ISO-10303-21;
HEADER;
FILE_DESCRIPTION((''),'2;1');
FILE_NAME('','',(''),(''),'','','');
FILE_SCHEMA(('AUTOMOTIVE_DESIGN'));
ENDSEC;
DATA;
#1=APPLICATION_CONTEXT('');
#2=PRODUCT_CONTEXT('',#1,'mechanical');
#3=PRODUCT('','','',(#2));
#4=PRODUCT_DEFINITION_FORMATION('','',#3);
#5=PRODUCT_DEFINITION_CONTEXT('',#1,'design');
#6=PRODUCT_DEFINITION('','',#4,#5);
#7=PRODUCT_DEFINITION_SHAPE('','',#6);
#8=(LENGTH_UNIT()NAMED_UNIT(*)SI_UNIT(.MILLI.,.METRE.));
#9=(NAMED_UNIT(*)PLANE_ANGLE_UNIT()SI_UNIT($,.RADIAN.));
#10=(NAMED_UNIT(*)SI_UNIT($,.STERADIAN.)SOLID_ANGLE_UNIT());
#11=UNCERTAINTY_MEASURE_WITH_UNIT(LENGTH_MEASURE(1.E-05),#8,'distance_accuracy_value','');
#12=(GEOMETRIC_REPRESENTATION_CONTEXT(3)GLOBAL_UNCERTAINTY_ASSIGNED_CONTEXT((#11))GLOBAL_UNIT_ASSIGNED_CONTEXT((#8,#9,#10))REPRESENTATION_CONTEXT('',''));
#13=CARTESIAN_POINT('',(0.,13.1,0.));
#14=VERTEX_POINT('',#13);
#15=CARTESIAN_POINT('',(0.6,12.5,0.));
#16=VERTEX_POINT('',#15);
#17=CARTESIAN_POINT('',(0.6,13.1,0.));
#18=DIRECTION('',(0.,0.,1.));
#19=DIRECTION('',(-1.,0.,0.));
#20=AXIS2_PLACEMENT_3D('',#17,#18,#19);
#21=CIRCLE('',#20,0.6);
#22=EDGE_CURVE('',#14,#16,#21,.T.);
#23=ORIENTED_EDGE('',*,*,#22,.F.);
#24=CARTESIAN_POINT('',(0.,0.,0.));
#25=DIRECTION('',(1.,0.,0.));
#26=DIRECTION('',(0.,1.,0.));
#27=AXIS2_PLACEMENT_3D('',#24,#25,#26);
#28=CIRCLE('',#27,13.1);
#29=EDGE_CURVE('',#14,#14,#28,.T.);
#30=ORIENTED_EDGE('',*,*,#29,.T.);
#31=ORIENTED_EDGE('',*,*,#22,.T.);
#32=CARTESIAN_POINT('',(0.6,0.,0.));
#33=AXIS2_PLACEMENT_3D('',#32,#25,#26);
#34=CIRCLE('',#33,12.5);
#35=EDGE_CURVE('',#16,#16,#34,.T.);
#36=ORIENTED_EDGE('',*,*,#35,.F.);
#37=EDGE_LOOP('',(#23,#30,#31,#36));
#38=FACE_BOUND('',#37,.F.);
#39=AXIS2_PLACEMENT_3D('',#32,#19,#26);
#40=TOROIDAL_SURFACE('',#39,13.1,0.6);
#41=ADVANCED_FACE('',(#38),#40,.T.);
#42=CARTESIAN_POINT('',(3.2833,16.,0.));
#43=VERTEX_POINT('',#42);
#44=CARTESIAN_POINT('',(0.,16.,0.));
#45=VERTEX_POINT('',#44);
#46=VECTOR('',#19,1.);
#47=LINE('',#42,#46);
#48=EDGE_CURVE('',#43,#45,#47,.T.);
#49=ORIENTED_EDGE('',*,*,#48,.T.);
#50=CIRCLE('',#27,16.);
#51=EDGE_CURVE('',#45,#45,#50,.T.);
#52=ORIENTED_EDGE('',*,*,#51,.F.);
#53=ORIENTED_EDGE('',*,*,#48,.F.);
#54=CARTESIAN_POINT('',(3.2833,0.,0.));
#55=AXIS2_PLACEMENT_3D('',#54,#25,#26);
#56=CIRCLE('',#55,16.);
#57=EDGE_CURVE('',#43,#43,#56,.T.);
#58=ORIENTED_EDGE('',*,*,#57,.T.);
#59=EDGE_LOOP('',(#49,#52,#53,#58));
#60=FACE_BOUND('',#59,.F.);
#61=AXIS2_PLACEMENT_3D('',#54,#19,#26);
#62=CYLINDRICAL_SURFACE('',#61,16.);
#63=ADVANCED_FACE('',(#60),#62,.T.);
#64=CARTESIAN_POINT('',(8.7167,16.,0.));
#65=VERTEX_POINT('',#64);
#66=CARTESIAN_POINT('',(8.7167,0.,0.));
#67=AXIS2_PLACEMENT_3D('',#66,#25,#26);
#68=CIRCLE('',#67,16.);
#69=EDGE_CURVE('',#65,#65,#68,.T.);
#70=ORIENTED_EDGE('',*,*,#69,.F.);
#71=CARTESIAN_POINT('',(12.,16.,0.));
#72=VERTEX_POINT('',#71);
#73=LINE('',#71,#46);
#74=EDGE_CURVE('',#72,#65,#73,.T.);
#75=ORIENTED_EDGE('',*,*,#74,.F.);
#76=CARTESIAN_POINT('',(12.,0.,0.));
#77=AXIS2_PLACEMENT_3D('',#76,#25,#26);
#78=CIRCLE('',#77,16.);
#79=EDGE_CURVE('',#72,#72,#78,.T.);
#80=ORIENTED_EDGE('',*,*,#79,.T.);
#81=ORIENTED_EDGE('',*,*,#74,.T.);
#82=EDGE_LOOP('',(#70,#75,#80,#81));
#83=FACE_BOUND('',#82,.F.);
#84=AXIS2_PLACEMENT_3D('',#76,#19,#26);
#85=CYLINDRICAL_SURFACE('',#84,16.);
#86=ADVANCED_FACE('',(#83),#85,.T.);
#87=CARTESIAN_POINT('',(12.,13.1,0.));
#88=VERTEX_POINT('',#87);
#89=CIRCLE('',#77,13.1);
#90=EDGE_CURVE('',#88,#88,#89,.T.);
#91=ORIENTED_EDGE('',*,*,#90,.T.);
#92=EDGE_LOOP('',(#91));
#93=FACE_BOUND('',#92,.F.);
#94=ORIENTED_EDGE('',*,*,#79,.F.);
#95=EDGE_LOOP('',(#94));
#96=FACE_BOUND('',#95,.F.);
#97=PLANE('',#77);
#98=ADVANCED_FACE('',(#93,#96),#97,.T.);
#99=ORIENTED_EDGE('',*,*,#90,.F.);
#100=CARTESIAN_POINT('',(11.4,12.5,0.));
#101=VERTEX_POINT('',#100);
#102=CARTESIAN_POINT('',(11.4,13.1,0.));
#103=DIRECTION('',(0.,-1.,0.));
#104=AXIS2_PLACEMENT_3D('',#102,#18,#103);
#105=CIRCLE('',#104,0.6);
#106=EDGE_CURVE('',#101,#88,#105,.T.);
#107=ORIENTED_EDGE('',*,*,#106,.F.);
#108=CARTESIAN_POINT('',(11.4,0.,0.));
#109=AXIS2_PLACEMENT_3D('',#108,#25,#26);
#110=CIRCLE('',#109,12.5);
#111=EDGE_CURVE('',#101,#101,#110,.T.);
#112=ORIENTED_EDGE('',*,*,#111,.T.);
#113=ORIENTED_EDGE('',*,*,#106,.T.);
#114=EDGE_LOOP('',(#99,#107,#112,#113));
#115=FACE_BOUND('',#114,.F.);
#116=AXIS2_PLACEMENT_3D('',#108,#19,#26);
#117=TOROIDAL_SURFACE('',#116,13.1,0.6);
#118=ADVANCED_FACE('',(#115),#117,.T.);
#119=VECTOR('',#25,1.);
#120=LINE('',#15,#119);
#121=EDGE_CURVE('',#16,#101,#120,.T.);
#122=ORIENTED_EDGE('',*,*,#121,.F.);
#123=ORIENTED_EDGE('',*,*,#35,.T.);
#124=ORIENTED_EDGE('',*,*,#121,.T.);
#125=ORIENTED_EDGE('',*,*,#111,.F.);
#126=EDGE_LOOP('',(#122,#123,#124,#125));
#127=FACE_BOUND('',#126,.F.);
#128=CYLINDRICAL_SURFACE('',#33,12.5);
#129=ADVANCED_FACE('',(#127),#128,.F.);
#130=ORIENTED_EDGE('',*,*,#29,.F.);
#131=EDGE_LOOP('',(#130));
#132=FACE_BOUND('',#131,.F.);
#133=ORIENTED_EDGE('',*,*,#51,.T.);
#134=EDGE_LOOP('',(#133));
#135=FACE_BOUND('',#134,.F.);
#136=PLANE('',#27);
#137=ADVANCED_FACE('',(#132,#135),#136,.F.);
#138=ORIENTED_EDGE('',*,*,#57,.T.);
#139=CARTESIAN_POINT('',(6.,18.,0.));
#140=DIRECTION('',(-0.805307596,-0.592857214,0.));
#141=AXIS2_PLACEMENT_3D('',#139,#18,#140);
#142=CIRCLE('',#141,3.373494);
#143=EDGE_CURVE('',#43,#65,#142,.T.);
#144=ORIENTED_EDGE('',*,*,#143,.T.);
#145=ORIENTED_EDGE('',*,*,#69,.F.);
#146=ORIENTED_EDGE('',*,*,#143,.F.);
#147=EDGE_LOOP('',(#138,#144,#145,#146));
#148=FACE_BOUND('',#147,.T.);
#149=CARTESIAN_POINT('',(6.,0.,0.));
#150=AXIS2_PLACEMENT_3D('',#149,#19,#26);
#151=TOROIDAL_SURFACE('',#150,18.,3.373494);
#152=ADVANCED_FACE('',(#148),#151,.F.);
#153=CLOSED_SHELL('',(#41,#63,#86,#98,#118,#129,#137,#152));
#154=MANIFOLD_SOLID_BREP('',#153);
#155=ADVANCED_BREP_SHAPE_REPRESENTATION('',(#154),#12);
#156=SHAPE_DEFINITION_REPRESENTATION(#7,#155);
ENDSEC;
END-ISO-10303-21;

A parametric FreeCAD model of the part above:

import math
import FreeCAD as App
import Part
import Sketcher
Q = App.Units.Quantity

doc = App.newDocument("Part")
params = doc.addObject("Spreadsheet::Sheet", "Params")
for row, (alias, value) in enumerate([
    ("sketch1_radius", "0.6 mm"),
    ("sketch1_width", "10.8 mm"),
    ("sketch1_height", "2.9 mm"),
    ("revolution_angle", "360 deg"),
], start=1):
    params.set(f"A{row}", alias)
    params.set(f"B{row}", "=" + value)
    params.setAlias(f"B{row}", alias)

body = doc.addObject("PartDesign::Body", "Body")

sketch1 = doc.addObject("Sketcher::SketchObject", "Sketch")
body.addObject(sketch1)
sketch1.AttachmentSupport = (doc.XY_Plane, [""])
sketch1.MapMode = "FlatFace"
sketch1.addGeometry(Part.LineSegment(App.Vector(0, 16, 0), App.Vector(0, 13.1, 0)), False)
sketch1.addGeometry(Part.ArcOfCircle(Part.Circle(App.Vector(0.6, 13.1, 0), App.Vector(0, 0, 1), 0.6), math.radians(180), math.radians(270)), False)
sketch1.addGeometry(Part.LineSegment(App.Vector(0.6, 12.5, 0), App.Vector(11.4, 12.5, 0)), False)
sketch1.addGeometry(Part.ArcOfCircle(Part.Circle(App.Vector(11.4, 13.1, 0), App.Vector(0, 0, 1), 0.6), math.radians(-90), math.radians(0)), False)
sketch1.addGeometry(Part.LineSegment(App.Vector(12, 13.1, 0), App.Vector(12, 16, 0)), False)
sketch1.addGeometry(Part.LineSegment(App.Vector(12, 16, 0), App.Vector(8.7, 16, 0)), False)
sketch1.addGeometry(Part.ArcOfCircle(Part.Circle(App.Vector(6, 18, 0), App.Vector(0, 0, 1), 3.4), math.radians(-144), math.radians(-36)), False)
sketch1.addGeometry(Part.LineSegment(App.Vector(3.3, 16, 0), App.Vector(0, 16, 0)), False)
sketch1.addConstraint(Sketcher.Constraint("Tangent", 0, 2, 1, 1))
sketch1.addConstraint(Sketcher.Constraint("Tangent", 1, 2, 2, 1))
sketch1.addConstraint(Sketcher.Constraint("Tangent", 2, 2, 3, 1))
sketch1.addConstraint(Sketcher.Constraint("Tangent", 3, 2, 4, 1))
sketch1.addConstraint(Sketcher.Constraint("Coincident", 4, 2, 5, 1))
sketch1.addConstraint(Sketcher.Constraint("Coincident", 5, 2, 6, 2))
sketch1.addConstraint(Sketcher.Constraint("Coincident", 6, 1, 7, 1))
sketch1.addConstraint(Sketcher.Constraint("Coincident", 7, 2, 0, 1))
sketch1.addConstraint(Sketcher.Constraint("Vertical", 0))
sketch1.addConstraint(Sketcher.Constraint("Horizontal", 2))
sketch1.addConstraint(Sketcher.Constraint("Vertical", 4))
sketch1.addConstraint(Sketcher.Constraint("Horizontal", 5))
sketch1.addConstraint(Sketcher.Constraint("Horizontal", 7))
sketch1.addConstraint(Sketcher.Constraint("Equal", 1, 3))
sketch1.addConstraint(Sketcher.Constraint("PointOnObject", 0, 2, -2))
sketch1.addConstraint(Sketcher.Constraint("Horizontal", 5, 2, 6, 1))
sketch1.addConstraint(Sketcher.Constraint("Equal", 5, 7))
sketch1.addConstraint(Sketcher.Constraint("Radius", 1, Q("0.6 mm")))
sketch1.addConstraint(Sketcher.Constraint("DistanceX", 2, 1, 2, 2, Q("10.8 mm")))
sketch1.addConstraint(Sketcher.Constraint("DistanceY", 0, 2, 0, 1, Q("2.9 mm")))
sketch1.addConstraint(Sketcher.Constraint("DistanceY", -1, 1, 6, 3, Q("18 mm")))
sketch1.addConstraint(Sketcher.Constraint("DistanceY", -1, 1, 4, 2, Q("16 mm")))
sketch1.addConstraint(Sketcher.Constraint("Radius", 6, Q("3.3735 mm")))
sketch1.setExpression("Constraints[17]", "Params.sketch1_radius")
sketch1.setExpression("Constraints[18]", "Params.sketch1_width")
sketch1.setExpression("Constraints[19]", "Params.sketch1_height")
revolution = doc.addObject("PartDesign::Revolution", "Revolution")
body.addObject(revolution)
revolution.Profile = sketch1
revolution.ReferenceAxis = (sketch1, ["H_Axis"])
revolution.setExpression("Angle", "Params.revolution_angle")

doc.recompute()
